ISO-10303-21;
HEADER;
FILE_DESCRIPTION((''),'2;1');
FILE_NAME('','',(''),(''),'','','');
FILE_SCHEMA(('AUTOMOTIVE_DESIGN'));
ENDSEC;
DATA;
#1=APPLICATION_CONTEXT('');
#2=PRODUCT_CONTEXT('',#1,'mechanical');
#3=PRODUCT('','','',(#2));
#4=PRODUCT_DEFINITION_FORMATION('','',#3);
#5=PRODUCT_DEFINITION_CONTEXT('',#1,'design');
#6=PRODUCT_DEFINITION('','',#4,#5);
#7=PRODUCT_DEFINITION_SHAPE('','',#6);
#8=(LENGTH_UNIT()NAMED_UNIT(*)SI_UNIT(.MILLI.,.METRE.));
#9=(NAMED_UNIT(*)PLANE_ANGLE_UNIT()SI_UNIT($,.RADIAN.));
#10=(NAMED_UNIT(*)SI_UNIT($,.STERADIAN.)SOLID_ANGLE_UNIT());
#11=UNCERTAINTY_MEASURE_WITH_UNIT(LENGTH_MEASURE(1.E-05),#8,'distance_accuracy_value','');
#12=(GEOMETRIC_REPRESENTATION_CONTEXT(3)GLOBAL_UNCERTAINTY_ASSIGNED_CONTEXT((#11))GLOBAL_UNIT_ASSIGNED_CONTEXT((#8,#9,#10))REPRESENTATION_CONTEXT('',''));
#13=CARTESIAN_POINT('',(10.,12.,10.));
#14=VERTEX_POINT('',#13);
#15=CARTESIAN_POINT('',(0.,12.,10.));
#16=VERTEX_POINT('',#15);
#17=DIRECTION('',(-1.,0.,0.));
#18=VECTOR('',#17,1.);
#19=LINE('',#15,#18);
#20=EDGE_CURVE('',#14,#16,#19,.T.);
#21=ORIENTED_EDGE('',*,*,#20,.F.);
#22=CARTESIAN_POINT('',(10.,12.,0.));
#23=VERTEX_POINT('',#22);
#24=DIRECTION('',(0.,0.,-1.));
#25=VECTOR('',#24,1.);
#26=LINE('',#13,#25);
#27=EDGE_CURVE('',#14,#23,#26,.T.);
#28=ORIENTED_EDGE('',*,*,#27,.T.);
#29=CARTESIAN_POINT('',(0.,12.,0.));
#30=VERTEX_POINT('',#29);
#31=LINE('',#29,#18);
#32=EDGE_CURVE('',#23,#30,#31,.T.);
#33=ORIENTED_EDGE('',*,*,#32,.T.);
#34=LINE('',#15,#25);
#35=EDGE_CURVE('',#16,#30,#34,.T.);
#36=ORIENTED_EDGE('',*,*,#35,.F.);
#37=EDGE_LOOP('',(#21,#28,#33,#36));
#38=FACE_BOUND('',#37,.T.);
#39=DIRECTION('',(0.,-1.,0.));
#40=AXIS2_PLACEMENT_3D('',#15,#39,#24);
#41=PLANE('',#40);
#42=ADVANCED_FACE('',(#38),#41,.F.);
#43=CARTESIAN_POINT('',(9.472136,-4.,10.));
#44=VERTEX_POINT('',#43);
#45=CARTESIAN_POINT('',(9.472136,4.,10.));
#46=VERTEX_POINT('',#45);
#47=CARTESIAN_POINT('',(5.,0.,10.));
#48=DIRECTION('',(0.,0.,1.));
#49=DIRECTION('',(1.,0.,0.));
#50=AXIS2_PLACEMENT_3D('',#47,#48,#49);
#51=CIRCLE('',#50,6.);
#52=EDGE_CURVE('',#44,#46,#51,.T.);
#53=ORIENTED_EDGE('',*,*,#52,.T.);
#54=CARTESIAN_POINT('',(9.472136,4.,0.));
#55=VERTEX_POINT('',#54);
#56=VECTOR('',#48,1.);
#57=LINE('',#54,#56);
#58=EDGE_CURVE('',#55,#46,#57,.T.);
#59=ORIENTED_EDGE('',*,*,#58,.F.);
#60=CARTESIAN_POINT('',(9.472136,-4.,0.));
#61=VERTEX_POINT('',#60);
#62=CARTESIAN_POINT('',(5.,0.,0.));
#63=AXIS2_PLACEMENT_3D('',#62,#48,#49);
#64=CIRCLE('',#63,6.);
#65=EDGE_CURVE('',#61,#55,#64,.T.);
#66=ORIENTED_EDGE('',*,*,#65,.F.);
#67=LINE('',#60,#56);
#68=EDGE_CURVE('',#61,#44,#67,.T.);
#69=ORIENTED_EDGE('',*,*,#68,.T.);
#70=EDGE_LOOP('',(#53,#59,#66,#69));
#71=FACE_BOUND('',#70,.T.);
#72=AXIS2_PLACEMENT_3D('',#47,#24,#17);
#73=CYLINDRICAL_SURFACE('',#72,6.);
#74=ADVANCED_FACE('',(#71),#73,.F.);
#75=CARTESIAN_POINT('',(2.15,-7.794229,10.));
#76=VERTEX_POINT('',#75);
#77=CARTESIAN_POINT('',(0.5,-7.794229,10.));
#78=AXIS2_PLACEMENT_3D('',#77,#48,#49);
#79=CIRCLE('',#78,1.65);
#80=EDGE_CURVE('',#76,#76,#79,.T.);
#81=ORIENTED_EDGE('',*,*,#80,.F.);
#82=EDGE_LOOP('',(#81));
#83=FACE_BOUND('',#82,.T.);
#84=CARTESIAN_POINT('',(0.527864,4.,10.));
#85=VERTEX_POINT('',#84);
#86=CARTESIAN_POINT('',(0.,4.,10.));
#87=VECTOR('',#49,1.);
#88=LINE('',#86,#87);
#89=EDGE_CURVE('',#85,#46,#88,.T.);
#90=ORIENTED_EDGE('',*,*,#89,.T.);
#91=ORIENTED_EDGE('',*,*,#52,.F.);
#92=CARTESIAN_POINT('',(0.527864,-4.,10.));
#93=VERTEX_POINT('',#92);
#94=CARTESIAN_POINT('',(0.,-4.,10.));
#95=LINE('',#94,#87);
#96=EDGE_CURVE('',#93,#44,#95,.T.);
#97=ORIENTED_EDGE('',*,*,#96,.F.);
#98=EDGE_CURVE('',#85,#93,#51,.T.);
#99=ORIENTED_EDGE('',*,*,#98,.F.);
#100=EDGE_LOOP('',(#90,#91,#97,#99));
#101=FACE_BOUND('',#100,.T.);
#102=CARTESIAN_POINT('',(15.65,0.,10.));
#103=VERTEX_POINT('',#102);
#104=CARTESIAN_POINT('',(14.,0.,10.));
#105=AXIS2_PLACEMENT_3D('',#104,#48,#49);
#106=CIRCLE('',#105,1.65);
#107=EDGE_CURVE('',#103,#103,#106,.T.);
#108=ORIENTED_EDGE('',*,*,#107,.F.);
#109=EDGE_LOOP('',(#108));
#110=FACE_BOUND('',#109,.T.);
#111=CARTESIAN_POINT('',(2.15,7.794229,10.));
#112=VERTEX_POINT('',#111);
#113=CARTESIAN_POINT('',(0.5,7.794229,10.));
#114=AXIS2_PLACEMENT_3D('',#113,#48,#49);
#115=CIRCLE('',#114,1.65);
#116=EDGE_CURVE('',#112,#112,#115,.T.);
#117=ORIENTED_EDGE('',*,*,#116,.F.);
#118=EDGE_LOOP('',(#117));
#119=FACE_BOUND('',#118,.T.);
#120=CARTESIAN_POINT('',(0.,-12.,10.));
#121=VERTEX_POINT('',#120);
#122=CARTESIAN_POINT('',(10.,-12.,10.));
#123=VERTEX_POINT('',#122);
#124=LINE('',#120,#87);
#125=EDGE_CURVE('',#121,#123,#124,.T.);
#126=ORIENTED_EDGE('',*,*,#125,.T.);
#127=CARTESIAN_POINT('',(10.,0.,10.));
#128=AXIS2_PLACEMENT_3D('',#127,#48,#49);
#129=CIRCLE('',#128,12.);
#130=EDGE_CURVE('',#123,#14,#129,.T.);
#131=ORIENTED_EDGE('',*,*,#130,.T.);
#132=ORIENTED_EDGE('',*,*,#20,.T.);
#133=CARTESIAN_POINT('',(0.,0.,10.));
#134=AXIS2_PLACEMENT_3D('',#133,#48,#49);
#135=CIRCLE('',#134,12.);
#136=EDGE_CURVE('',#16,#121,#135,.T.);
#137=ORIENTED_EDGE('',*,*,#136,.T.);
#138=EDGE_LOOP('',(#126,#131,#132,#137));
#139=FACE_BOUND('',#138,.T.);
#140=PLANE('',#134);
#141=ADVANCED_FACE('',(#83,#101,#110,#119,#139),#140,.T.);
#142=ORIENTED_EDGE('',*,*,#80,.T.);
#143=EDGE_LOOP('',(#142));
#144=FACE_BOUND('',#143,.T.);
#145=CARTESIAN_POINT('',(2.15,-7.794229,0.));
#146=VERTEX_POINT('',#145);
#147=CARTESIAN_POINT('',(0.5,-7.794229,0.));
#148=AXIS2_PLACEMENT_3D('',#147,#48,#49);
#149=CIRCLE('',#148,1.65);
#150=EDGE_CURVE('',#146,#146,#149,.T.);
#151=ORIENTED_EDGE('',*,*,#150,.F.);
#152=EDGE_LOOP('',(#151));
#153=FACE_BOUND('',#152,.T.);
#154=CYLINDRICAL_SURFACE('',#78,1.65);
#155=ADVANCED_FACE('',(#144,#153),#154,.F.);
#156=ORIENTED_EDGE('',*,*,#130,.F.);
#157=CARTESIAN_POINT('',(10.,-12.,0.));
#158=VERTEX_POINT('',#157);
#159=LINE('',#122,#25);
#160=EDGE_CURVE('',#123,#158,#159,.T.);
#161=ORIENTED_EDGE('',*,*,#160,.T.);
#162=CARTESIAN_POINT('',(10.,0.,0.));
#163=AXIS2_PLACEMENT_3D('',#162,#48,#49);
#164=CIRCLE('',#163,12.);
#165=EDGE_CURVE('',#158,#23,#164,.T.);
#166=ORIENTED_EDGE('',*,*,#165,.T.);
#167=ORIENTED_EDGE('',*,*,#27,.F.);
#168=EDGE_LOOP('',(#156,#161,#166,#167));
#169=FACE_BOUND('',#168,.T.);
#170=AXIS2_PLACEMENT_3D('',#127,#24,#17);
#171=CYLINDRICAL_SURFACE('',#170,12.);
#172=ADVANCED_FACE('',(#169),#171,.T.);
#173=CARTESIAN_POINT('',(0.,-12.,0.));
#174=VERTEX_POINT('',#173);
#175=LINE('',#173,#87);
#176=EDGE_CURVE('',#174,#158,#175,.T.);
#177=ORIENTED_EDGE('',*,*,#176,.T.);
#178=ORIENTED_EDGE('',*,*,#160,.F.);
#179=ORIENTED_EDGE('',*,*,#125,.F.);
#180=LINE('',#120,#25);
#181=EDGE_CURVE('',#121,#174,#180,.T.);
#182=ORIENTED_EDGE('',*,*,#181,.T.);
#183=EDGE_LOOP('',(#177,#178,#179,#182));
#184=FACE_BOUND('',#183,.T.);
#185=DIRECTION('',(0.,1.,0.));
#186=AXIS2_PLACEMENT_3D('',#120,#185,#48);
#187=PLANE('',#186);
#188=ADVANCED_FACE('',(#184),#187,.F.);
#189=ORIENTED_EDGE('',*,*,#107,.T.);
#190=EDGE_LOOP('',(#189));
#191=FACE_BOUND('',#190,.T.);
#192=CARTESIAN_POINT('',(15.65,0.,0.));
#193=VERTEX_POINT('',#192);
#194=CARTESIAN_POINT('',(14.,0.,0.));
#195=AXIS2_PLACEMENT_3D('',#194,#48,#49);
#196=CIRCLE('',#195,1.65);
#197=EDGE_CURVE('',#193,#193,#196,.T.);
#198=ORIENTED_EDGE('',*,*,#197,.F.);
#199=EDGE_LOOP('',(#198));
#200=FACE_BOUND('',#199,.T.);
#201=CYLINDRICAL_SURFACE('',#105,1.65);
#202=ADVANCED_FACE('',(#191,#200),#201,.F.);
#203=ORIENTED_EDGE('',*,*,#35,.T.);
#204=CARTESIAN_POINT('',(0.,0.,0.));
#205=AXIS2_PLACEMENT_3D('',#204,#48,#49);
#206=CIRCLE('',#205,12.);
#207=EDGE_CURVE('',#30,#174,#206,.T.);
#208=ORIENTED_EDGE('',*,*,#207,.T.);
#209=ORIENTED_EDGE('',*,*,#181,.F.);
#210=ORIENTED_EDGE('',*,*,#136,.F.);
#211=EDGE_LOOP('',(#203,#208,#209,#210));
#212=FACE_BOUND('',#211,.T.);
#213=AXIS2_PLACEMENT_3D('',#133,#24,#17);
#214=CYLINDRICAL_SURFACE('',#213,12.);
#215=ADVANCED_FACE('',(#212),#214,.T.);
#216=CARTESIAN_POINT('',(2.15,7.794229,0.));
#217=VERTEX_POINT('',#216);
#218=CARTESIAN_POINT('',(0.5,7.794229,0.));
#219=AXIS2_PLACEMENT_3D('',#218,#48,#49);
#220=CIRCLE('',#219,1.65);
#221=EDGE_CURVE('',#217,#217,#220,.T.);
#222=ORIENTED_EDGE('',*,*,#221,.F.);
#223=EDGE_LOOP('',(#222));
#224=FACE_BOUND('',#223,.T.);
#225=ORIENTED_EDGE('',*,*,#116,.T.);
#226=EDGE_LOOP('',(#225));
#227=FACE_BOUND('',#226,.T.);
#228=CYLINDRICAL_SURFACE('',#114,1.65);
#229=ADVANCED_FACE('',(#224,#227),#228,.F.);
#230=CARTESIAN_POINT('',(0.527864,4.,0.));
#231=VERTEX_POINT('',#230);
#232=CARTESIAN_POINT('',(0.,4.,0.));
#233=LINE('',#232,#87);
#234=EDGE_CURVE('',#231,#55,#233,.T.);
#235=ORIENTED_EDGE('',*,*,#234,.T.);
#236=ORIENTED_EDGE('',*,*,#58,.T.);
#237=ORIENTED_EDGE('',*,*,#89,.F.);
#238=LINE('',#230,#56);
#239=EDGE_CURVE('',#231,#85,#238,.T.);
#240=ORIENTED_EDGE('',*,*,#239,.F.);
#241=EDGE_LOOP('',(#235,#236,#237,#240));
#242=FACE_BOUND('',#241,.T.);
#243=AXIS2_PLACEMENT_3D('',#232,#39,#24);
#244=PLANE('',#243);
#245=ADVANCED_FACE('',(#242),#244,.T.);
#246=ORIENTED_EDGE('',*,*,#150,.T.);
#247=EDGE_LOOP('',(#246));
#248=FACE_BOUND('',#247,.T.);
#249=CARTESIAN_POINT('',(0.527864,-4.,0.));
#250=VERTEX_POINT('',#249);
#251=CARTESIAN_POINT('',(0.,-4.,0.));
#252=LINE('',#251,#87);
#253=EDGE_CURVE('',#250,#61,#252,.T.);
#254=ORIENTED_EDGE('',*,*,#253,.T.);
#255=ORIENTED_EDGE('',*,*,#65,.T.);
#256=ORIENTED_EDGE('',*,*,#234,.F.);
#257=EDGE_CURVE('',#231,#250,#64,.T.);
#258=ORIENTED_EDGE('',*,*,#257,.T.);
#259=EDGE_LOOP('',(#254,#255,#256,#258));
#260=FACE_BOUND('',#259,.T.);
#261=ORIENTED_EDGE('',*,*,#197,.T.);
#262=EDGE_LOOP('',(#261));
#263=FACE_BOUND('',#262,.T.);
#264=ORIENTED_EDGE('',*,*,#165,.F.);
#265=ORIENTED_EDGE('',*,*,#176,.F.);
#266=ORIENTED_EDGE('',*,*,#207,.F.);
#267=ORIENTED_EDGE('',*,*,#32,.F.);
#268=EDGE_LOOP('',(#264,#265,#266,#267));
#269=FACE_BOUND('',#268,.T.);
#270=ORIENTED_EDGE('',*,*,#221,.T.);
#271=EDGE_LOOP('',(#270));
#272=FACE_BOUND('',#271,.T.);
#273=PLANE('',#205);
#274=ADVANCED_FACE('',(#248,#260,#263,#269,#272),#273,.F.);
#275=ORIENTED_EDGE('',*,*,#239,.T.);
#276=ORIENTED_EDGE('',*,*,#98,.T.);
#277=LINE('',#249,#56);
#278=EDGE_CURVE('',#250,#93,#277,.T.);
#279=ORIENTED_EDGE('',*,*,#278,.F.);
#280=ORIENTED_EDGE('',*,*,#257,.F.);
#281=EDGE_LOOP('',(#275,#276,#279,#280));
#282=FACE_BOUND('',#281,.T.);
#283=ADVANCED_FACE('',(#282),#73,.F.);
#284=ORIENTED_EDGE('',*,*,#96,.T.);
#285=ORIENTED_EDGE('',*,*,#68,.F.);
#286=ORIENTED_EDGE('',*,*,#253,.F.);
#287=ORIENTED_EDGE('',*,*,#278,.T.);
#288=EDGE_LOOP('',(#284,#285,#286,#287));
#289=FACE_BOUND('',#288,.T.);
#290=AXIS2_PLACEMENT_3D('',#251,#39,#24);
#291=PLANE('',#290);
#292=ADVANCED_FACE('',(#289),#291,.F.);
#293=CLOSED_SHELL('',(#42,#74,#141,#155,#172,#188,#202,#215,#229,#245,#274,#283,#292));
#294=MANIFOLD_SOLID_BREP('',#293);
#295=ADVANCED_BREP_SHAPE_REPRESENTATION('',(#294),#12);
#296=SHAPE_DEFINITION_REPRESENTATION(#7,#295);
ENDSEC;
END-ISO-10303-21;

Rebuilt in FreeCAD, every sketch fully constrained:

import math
import FreeCAD as App
import Part
import Sketcher

V = App.Vector
Q = App.Units.Quantity

doc = App.newDocument("Part")
params = doc.addObject("Spreadsheet::Sheet", "Params")
for row, (alias, value) in enumerate([
    ("sketch1_diameter", "12 mm"),
    ("sketch1_radius", "12 mm"),
    ("sketch1_width", "10 mm"),
    ("pad1_length", "10 mm"),
    ("sketch2_diameter", "3.3 mm"),
    ("hole_diameter", "3.3 mm"),
    ("sketch3_radius", "6 mm"),
    ("pad2_length", "10 mm"),
], start=1):
    params.set(f"A{row}", alias)
    params.set(f"B{row}", "=" + value)
    params.setAlias(f"B{row}", alias)

body = doc.addObject("PartDesign::Body", "Body")

sketch1 = body.newObject("Sketcher::SketchObject", "Sketch")
sketch1.AttachmentSupport = (doc.getObject("XY_Plane"), [""])
sketch1.MapMode = "FlatFace"
sketch1.addGeometry([
    Part.LineSegment(V(10, 12, 0), V(0, 12, 0)),
    Part.ArcOfCircle(Part.Circle(V(0, 0, 0), V(0, 0, 1), 12), math.radians(90), math.radians(270)),
    Part.LineSegment(V(0, -12, 0), V(10, -12, 0)),
    Part.ArcOfCircle(Part.Circle(V(10, 0, 0), V(0, 0, 1), 12), math.radians(-90), math.radians(90)),
    Part.Circle(V(5, 0, 0), V(0, 0, 1), 6),
], False)
sketch1.addConstraint([
    Sketcher.Constraint("Tangent", 0, 2, 1, 1),
    Sketcher.Constraint("Tangent", 1, 2, 2, 1),
    Sketcher.Constraint("Tangent", 2, 2, 3, 1),
    Sketcher.Constraint("Tangent", 3, 2, 0, 1),
    Sketcher.Constraint("Horizontal", 0),
    Sketcher.Constraint("Horizontal", 2),
    Sketcher.Constraint("Coincident", 1, 3, -1, 1),
    Sketcher.Constraint("PointOnObject", 4, 3, -1),
    Sketcher.Constraint("Diameter", 4, Q("12 mm")),
    Sketcher.Constraint("Radius", 1, Q("12 mm")),
    Sketcher.Constraint("DistanceX", 0, 2, 0, 1, Q("10 mm")),
    Sketcher.Constraint("DistanceX", -1, 1, 4, 3, Q("5 mm")),
])
sketch1.setExpression("Constraints[8]", "Params.sketch1_diameter")
sketch1.setExpression("Constraints[9]", "Params.sketch1_radius")
sketch1.setExpression("Constraints[10]", "Params.sketch1_width")
pad1 = body.newObject("PartDesign::Pad", "Pad")
pad1.Profile = sketch1
pad1.setExpression("Length", "Params.pad1_length")

sketch2 = body.newObject("Sketcher::SketchObject", "Sketch001")
sketch2.AttachmentSupport = (doc.getObject("XY_Plane"), [""])
sketch2.MapMode = "FlatFace"
sketch2.AttachmentOffset = App.Placement(V(0, 0, 10), App.Rotation())
sketch2.addGeometry(Part.Circle(V(14, 0, 0), V(0, 0, 1), 1.6), False)
sketch2.addConstraint([
    Sketcher.Constraint("PointOnObject", 0, 3, -1),
    Sketcher.Constraint("Diameter", 0, Q("3.3 mm")),
    Sketcher.Constraint("DistanceX", -1, 1, 0, 3, Q("14 mm")),
])
sketch2.setExpression("Constraints[1]", "Params.sketch2_diameter")
doc.recompute()
hole = body.newObject("PartDesign::Hole", "Hole")
hole.Profile = sketch2
hole.ThreadType = "None"
hole.setExpression("Diameter", "Params.hole_diameter")
hole.DepthType = "ThroughAll"
doc.recompute()

datumline = body.newObject("PartDesign::Line", "DatumLine")
datumline.Placement = App.Placement(V(5, 0, 0), App.Rotation(V(0, 0, 1), V(0, 0, 1)))
polarpattern = body.newObject("PartDesign::PolarPattern", "PolarPattern")
polarpattern.Originals = [hole]
polarpattern.Axis = (datumline, [""])
polarpattern.Angle = 360
polarpattern.Occurrences = 3
body.Tip = polarpattern

sketch3 = body.newObject("Sketcher::SketchObject", "Sketch002")
sketch3.AttachmentSupport = (doc.getObject("XY_Plane"), [""])
sketch3.MapMode = "FlatFace"
sketch3.addGeometry([
    Part.ArcOfCircle(Part.Circle(V(5, 0, 0), V(0, 0, 1), 6), math.radians(42), math.radians(138)),
    Part.LineSegment(V(1, 4, 0), V(9, 4, 0)),
    Part.LineSegment(V(9, -4, 0), V(1, -4, 0)),
    Part.ArcOfCircle(Part.Circle(V(5, 0, 0), V(0, 0, 1), 6), math.radians(-138), math.radians(-42)),
], False)
sketch3.addConstraint([
    Sketcher.Constraint("Coincident", 0, 1, 1, 2),
    Sketcher.Constraint("Coincident", 1, 1, 0, 2),
    Sketcher.Constraint("Coincident", 2, 1, 3, 2),
    Sketcher.Constraint("Coincident", 3, 1, 2, 2),
    Sketcher.Constraint("Horizontal", 1),
    Sketcher.Constraint("Horizontal", 2),
    Sketcher.Constraint("Coincident", 3, 3, 0, 3),
    Sketcher.Constraint("Equal", 0, 3),
    Sketcher.Constraint("Symmetric", 0, 1, 2, 1, -1),
    Sketcher.Constraint("Radius", 0, Q("6 mm")),
    Sketcher.Constraint("DistanceX", -1, 1, 0, 3, Q("5 mm")),
    Sketcher.Constraint("DistanceY", -1, 1, 0, 1, Q("4 mm")),
])
sketch3.setExpression("Constraints[9]", "Params.sketch3_radius")
pad2 = body.newObject("PartDesign::Pad", "Pad001")
pad2.Profile = sketch3
pad2.setExpression("Length", "Params.pad2_length")

doc.recompute()
